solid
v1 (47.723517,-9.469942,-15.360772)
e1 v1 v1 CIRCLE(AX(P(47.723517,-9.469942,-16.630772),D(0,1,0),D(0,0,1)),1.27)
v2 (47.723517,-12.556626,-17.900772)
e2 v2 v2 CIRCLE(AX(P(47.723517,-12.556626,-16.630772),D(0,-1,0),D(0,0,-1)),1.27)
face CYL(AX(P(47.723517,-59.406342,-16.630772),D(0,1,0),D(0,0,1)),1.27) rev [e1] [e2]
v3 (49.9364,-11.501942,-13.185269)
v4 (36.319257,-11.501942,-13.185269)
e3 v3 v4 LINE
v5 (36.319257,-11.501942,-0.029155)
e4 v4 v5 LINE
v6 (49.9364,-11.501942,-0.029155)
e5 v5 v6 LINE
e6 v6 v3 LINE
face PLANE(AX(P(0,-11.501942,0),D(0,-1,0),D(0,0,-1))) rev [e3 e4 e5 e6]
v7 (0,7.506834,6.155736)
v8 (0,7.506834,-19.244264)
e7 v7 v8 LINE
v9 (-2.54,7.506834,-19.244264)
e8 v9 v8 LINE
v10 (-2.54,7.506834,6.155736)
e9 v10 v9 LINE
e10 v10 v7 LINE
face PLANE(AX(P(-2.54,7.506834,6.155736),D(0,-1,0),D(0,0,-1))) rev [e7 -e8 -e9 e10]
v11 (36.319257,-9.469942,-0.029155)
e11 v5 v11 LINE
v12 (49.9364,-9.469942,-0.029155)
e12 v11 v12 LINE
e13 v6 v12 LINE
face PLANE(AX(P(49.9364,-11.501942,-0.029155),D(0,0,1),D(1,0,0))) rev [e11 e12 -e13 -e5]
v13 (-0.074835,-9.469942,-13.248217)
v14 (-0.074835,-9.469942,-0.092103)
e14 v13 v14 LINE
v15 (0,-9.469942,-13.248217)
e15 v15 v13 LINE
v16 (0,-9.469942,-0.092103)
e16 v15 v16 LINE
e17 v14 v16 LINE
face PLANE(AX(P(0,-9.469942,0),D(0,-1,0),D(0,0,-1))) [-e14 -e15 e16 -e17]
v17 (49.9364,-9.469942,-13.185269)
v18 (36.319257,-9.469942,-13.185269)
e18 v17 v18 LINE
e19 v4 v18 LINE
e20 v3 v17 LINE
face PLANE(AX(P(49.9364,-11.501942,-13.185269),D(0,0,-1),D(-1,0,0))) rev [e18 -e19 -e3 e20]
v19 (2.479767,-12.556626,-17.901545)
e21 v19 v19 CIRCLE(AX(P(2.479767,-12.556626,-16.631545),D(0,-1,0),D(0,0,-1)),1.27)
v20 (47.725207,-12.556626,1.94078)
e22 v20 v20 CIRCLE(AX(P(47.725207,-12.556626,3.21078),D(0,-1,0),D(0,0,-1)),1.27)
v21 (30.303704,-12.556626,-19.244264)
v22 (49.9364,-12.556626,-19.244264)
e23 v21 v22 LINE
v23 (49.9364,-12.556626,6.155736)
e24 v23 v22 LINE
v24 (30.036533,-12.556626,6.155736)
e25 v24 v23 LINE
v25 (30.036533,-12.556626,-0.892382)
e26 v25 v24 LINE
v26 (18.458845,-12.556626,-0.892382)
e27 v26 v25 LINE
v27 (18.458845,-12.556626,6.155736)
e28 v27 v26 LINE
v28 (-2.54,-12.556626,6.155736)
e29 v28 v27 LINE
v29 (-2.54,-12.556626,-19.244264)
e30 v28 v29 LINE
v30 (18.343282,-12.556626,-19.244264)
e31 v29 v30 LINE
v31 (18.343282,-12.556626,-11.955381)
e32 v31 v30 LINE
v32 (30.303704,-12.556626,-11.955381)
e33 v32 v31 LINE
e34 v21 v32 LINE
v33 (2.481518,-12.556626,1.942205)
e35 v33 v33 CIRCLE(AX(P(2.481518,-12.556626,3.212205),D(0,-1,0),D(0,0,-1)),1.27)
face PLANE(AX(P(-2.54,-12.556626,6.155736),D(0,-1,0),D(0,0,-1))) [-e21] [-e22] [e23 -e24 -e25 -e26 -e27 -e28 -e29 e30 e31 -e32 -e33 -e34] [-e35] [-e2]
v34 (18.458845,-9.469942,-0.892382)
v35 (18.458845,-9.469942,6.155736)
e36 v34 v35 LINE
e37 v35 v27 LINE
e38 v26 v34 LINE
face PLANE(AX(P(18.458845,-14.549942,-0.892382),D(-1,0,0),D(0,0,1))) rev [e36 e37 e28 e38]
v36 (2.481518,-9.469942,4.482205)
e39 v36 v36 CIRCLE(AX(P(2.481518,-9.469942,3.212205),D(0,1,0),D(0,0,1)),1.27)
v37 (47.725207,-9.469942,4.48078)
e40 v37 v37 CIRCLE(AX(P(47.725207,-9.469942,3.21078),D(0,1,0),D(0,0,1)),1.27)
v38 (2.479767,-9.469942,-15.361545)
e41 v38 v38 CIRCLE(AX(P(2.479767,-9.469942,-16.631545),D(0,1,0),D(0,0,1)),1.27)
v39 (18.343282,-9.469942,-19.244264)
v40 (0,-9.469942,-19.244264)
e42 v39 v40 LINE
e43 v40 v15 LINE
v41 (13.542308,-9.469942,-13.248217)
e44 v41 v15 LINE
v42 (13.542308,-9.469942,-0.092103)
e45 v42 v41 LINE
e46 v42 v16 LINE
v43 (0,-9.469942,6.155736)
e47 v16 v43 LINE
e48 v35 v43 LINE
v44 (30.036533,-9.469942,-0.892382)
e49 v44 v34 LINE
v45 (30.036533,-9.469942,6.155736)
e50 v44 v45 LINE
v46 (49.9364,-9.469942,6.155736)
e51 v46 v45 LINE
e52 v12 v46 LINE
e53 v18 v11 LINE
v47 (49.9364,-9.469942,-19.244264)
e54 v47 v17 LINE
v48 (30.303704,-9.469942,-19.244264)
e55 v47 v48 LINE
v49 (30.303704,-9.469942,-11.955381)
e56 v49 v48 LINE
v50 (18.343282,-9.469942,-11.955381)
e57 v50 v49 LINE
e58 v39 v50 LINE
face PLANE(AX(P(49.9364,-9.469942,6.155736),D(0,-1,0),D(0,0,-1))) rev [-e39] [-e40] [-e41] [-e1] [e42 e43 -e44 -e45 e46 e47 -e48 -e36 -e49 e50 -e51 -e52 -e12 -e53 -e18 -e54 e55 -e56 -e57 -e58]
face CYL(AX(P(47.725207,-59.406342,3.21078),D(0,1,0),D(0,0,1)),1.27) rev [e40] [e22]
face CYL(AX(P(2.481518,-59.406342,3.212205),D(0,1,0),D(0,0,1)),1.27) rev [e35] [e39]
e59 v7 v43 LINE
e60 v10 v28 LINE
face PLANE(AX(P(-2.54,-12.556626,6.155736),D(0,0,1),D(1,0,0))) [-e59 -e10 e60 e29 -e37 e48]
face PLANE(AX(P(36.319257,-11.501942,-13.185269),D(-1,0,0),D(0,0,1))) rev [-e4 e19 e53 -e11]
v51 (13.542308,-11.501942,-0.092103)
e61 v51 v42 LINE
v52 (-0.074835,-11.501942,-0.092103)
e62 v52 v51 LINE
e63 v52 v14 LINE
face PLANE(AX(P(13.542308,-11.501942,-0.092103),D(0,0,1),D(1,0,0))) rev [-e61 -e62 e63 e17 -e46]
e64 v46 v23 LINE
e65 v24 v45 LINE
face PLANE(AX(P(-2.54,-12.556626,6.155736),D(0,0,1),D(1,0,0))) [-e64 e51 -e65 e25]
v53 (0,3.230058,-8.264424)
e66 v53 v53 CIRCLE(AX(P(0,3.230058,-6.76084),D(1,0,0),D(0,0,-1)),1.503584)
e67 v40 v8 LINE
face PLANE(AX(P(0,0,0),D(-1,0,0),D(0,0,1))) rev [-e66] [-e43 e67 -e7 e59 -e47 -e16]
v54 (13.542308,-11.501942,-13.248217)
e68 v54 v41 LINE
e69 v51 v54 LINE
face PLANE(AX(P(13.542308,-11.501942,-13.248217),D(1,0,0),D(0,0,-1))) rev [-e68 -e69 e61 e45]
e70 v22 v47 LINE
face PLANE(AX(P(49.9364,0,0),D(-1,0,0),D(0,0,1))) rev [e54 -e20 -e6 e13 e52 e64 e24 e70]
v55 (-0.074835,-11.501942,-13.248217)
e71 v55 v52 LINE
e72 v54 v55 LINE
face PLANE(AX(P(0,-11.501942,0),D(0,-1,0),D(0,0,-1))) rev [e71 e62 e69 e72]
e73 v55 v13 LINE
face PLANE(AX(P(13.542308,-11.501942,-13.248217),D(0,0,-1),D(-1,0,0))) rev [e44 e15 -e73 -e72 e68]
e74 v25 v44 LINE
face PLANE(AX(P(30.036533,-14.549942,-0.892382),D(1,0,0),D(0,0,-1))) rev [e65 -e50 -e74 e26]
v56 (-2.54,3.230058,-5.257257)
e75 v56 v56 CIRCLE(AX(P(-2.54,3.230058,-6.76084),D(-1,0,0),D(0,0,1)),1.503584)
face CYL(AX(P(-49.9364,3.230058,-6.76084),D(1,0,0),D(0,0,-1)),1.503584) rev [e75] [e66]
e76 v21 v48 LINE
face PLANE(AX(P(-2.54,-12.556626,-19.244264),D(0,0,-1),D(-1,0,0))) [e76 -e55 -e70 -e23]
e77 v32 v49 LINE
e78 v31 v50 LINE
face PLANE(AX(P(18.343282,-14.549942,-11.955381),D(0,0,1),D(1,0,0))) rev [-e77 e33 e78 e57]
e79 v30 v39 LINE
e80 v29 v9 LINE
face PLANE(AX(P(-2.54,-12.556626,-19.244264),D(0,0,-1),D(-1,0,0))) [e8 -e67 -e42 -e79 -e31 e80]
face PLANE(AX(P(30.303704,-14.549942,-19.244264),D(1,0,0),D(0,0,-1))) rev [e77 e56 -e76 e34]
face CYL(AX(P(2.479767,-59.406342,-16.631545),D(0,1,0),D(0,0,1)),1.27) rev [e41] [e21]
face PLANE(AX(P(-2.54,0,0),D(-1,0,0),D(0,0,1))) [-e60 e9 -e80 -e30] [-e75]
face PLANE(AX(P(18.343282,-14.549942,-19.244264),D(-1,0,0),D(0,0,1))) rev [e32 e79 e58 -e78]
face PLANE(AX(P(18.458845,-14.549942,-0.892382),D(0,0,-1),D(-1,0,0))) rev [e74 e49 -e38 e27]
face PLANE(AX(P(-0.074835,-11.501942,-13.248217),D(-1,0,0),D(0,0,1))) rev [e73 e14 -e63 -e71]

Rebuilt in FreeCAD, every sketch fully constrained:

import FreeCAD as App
import Part
import Sketcher
Q = App.Units.Quantity

doc = App.newDocument("Part")
body = doc.addObject("PartDesign::Body", "Body")

# Sketch on YZ plane
sketch1 = doc.addObject("Sketcher::SketchObject", "Sketch")
body.addObject(sketch1)
sketch1.AttachmentSupport = (doc.YZ_Plane, [""])
sketch1.MapMode = "FlatFace"
sketch1.addGeometry(Part.LineSegment(App.Vector(12.843374, 6.155736, 0), App.Vector(-12.556626, 6.155736, 0)), False)
sketch1.addGeometry(Part.LineSegment(App.Vector(-12.556626, 6.155736, 0), App.Vector(-12.556626, -19.244264, 0)), False)
sketch1.addGeometry(Part.LineSegment(App.Vector(-12.556626, -19.244264, 0), App.Vector(12.843374, -19.244264, 0)), False)
sketch1.addGeometry(Part.LineSegment(App.Vector(12.843374, -19.244264, 0), App.Vector(12.843374, 6.155736, 0)), False)
sketch1.addConstraint(Sketcher.Constraint("Coincident", 0, 2, 1, 1))
sketch1.addConstraint(Sketcher.Constraint("Coincident", 1, 2, 2, 1))
sketch1.addConstraint(Sketcher.Constraint("Coincident", 2, 2, 3, 1))
sketch1.addConstraint(Sketcher.Constraint("Coincident", 3, 2, 0, 1))
sketch1.addConstraint(Sketcher.Constraint("Horizontal", 0))
sketch1.addConstraint(Sketcher.Constraint("Vertical", 1))
sketch1.addConstraint(Sketcher.Constraint("Horizontal", 2))
sketch1.addConstraint(Sketcher.Constraint("Vertical", 3))
sketch1.addConstraint(Sketcher.Constraint("Equal", 2, 1))
sketch1.addConstraint(Sketcher.Constraint("DistanceX", 0, 2, 0, 1, Q("1 in")))
sketch1.addConstraint(Sketcher.Constraint("DistanceX", 0, 2, -1, 1, 12.556626))
sketch1.addConstraint(Sketcher.Constraint("DistanceY", -1, 1, 0, 2, 6.155736))
pad1 = doc.addObject("PartDesign::Pad", "Pad")
body.addObject(pad1)
pad1.Profile = sketch1
pad1.Length = Q("0.1 in")
pad1.Reversed = True

# Sketch on YZ plane
sketch2 = doc.addObject("Sketcher::SketchObject", "Sketch001")
body.addObject(sketch2)
sketch2.AttachmentSupport = (doc.YZ_Plane, [""])
sketch2.MapMode = "FlatFace"
sketch2.addGeometry(Part.LineSegment(App.Vector(-9.469942, 6.155736, 0), App.Vector(-12.556626, 6.155736, 0)), False)
sketch2.addGeometry(Part.LineSegment(App.Vector(-12.556626, 6.155736, 0), App.Vector(-12.556626, -19.244264, 0)), False)
sketch2.addGeometry(Part.LineSegment(App.Vector(-12.556626, -19.244264, 0), App.Vector(-9.469942, -19.244264, 0)), False)
sketch2.addGeometry(Part.LineSegment(App.Vector(-9.469942, -19.244264, 0), App.Vector(-9.469942, 6.155736, 0)), False)
sketch2.addConstraint(Sketcher.Constraint("Coincident", 0, 2, 1, 1))
sketch2.addConstraint(Sketcher.Constraint("Coincident", 1, 2, 2, 1))
sketch2.addConstraint(Sketcher.Constraint("Coincident", 2, 2, 3, 1))
sketch2.addConstraint(Sketcher.Constraint("Coincident", 3, 2, 0, 1))
sketch2.addConstraint(Sketcher.Constraint("Horizontal", 0))
sketch2.addConstraint(Sketcher.Constraint("Vertical", 1))
sketch2.addConstraint(Sketcher.Constraint("Horizontal", 2))
sketch2.addConstraint(Sketcher.Constraint("Vertical", 3))
sketch2.addConstraint(Sketcher.Constraint("DistanceY", 1, 2, 1, 1, Q("1 in")))
sketch2.addConstraint(Sketcher.Constraint("DistanceX", 0, 2, 0, 1, 3.086684))
sketch2.addConstraint(Sketcher.Constraint("DistanceX", 2, 2, -1, 1, 9.469942))
sketch2.addConstraint(Sketcher.Constraint("DistanceY", -1, 1, 0, 2, 6.155736))
pad2 = doc.addObject("PartDesign::Pad", "Pad001")
body.addObject(pad2)
pad2.Profile = sketch2
pad2.Length = Q("1.966 in")

# Sketch on XZ plane
sketch3 = doc.addObject("Sketcher::SketchObject", "Sketch002")
body.addObject(sketch3)
sketch3.AttachmentSupport = (doc.XZ_Plane, [""])
sketch3.MapMode = "FlatFace"
sketch3.AttachmentOffset = App.Placement(App.Vector(0, 0, 9.469942), App.Rotation())
sketch3.addGeometry(Part.Circle(App.Vector(2.479767, -16.631545, 0), App.Vector(0, 0, 1), 1.27), False)
sketch3.addGeometry(Part.Circle(App.Vector(47.725207, 3.21078, 0), App.Vector(0, 0, 1), 1.27), False)
sketch3.addGeometry(Part.Circle(App.Vector(47.723517, -16.630772, 0), App.Vector(0, 0, 1), 1.27), False)
sketch3.addGeometry(Part.Circle(App.Vector(2.481518, 3.212205, 0), App.Vector(0, 0, 1), 1.27), False)
sketch3.addConstraint(Sketcher.Constraint("Equal", 0, 1))
sketch3.addConstraint(Sketcher.Constraint("Equal", 1, 2))
sketch3.addConstraint(Sketcher.Constraint("Equal", 2, 3))
sketch3.addConstraint(Sketcher.Constraint("Diameter", 0, Q("0.1 in")))
sketch3.addConstraint(Sketcher.Constraint("DistanceX", 0, 3, 2, 3, Q("1.78125 in")))
sketch3.addConstraint(Sketcher.Constraint("DistanceY", 0, 3, 3, 3, Q("0.78125 in")))
sketch3.addConstraint(Sketcher.Constraint("DistanceX", 3, 3, 2, 3, 45.241999))
sketch3.addConstraint(Sketcher.Constraint("DistanceY", -1, 1, 1, 3, 3.21078))
sketch3.addConstraint(Sketcher.Constraint("DistanceY", 2, 3, -1, 1, 16.630772))
sketch3.addConstraint(Sketcher.Constraint("DistanceX", 0, 3, 1, 3, 45.24544))
sketch3.addConstraint(Sketcher.Constraint("DistanceX", -1, 1, 0, 3, 2.479767))
sketch3.addConstraint(Sketcher.Constraint("DistanceY", 0, 3, -1, 1, 16.631545))
pocket1 = doc.addObject("PartDesign::Pocket", "Pocket")
body.addObject(pocket1)
pocket1.Profile = sketch3
pocket1.Length = Q("1.966 in")
pocket1.Reversed = True

# Sketch on YZ plane
sketch4 = doc.addObject("Sketcher::SketchObject", "Sketch003")
body.addObject(sketch4)
sketch4.AttachmentSupport = (doc.YZ_Plane, [""])
sketch4.MapMode = "FlatFace"
sketch4.addGeometry(Part.Circle(App.Vector(3.230058, -6.76084, 0), App.Vector(0, 0, 1), 1.503584), False)
sketch4.addConstraint(Sketcher.Constraint("Diameter", 0, 3.007167))
sketch4.addConstraint(Sketcher.Constraint("DistanceX", -1, 1, 0, 3, 3.230058))
sketch4.addConstraint(Sketcher.Constraint("DistanceY", 0, 3, -1, 1, 6.76084))
pocket2 = doc.addObject("PartDesign::Pocket", "Pocket001")
body.addObject(pocket2)
pocket2.Profile = sketch4
pocket2.Length = Q("1.966 in")

# Sketch on XZ plane
sketch5 = doc.addObject("Sketcher::SketchObject", "Sketch004")
body.addObject(sketch5)
sketch5.AttachmentSupport = (doc.XZ_Plane, [""])
sketch5.MapMode = "FlatFace"
sketch5.AttachmentOffset = App.Placement(App.Vector(0, 0, 9.469942), App.Rotation())
sketch5.addGeometry(Part.LineSegment(App.Vector(18.343282, -19.244264, 0), App.Vector(18.343282, -11.955381, 0)), False)
sketch5.addGeometry(Part.LineSegment(App.Vector(18.343282, -11.955381, 0), App.Vector(30.303704, -11.955381, 0)), False)
sketch5.addGeometry(Part.LineSegment(App.Vector(30.303704, -11.955381, 0), App.Vector(30.303704, -19.244264, 0)), False)
sketch5.addGeometry(Part.LineSegment(App.Vector(30.303704, -19.244264, 0), App.Vector(18.343282, -19.244264, 0)), False)
sketch5.addGeometry(Part.LineSegment(App.Vector(18.458845, -0.892382, 0), App.Vector(18.458845, 6.223219, 0)), False)
sketch5.addGeometry(Part.LineSegment(App.Vector(18.458845, 6.223219, 0), App.Vector(30.036533, 6.223219, 0)), False)
sketch5.addGeometry(Part.LineSegment(App.Vector(30.036533, 6.223219, 0), App.Vector(30.036533, -0.892382, 0)), False)
sketch5.addGeometry(Part.LineSegment(App.Vector(30.036533, -0.892382, 0), App.Vector(18.458845, -0.892382, 0)), False)
sketch5.addConstraint(Sketcher.Constraint("Coincident", 0, 2, 1, 1))
sketch5.addConstraint(Sketcher.Constraint("Coincident", 1, 2, 2, 1))
sketch5.addConstraint(Sketcher.Constraint("Coincident", 2, 2, 3, 1))
sketch5.addConstraint(Sketcher.Constraint("Coincident", 3, 2, 0, 1))
sketch5.addConstraint(Sketcher.Constraint("Coincident", 4, 2, 5, 1))
sketch5.addConstraint(Sketcher.Constraint("Coincident", 5, 2, 6, 1))
sketch5.addConstraint(Sketcher.Constraint("Coincident", 6, 2, 7, 1))
sketch5.addConstraint(Sketcher.Constraint("Coincident", 7, 2, 4, 1))
sketch5.addConstraint(Sketcher.Constraint("Vertical", 0))
sketch5.addConstraint(Sketcher.Constraint("Horizontal", 1))
sketch5.addConstraint(Sketcher.Constraint("Vertical", 2))
sketch5.addConstraint(Sketcher.Constraint("Horizontal", 3))
sketch5.addConstraint(Sketcher.Constraint("Vertical", 4))
sketch5.addConstraint(Sketcher.Constraint("Horizontal", 5))
sketch5.addConstraint(Sketcher.Constraint("Vertical", 6))
sketch5.addConstraint(Sketcher.Constraint("Horizontal", 7))
sketch5.addConstraint(Sketcher.Constraint("DistanceY", 4, 1, 4, 2, 7.115601))
sketch5.addConstraint(Sketcher.Constraint("DistanceX", 5, 1, 5, 2, 11.577688))
sketch5.addConstraint(Sketcher.Constraint("DistanceY", 0, 2, 4, 2, 18.1786))
sketch5.addConstraint(Sketcher.Constraint("DistanceX", 1, 1, 1, 2, 11.960422))
sketch5.addConstraint(Sketcher.Constraint("DistanceY", 0, 1, 0, 2, 7.288883))
sketch5.addConstraint(Sketcher.Constraint("DistanceX", -1, 1, 0, 2, 18.343282))
sketch5.addConstraint(Sketcher.Constraint("DistanceY", 0, 2, -1, 1, 11.955381))
sketch5.addConstraint(Sketcher.Constraint("DistanceX", 4, 2, 1, 2, 11.844859))
pocket3 = doc.addObject("PartDesign::Pocket", "Pocket002")
body.addObject(pocket3)
pocket3.Profile = sketch5
pocket3.Length = Q("0.2 in")
pocket3.Reversed = True

# Sketch on XZ plane
sketch6 = doc.addObject("Sketcher::SketchObject", "Sketch005")
body.addObject(sketch6)
sketch6.AttachmentSupport = (doc.XZ_Plane, [""])
sketch6.MapMode = "FlatFace"
sketch6.AttachmentOffset = App.Placement(App.Vector(0, 0, 9.469942), App.Rotation())
sketch6.addGeometry(Part.LineSegment(App.Vector(-0.074835, -13.248217, 0), App.Vector(-0.074835, -0.092103, 0)), False)
sketch6.addGeometry(Part.LineSegment(App.Vector(-0.074835, -0.092103, 0), App.Vector(13.542308, -0.092103, 0)), False)
sketch6.addGeometry(Part.LineSegment(App.Vector(13.542308, -0.092103, 0), App.Vector(13.542308, -13.248217, 0)), False)
sketch6.addGeometry(Part.LineSegment(App.Vector(13.542308, -13.248217, 0), App.Vector(-0.074835, -13.248217, 0)), False)
sketch6.addGeometry(Part.LineSegment(App.Vector(36.319257, -13.185269, 0), App.Vector(36.319257, -0.029155, 0)), False)
sketch6.addGeometry(Part.LineSegment(App.Vector(36.319257, -0.029155, 0), App.Vector(49.9364, -0.029155, 0)), False)
sketch6.addGeometry(Part.LineSegment(App.Vector(49.9364, -0.029155, 0), App.Vector(49.9364, -13.185269, 0)), False)
sketch6.addGeometry(Part.LineSegment(App.Vector(49.9364, -13.185269, 0), App.Vector(36.319257, -13.185269, 0)), False)
sketch6.addConstraint(Sketcher.Constraint("Coincident", 0, 2, 1, 1))
sketch6.addConstraint(Sketcher.Constraint("Coincident", 1, 2, 2, 1))
sketch6.addConstraint(Sketcher.Constraint("Coincident", 2, 2, 3, 1))
sketch6.addConstraint(Sketcher.Constraint("Coincident", 3, 2, 0, 1))
sketch6.addConstraint(Sketcher.Constraint("Coincident", 4, 2, 5, 1))
sketch6.addConstraint(Sketcher.Constraint("Coincident", 5, 2, 6, 1))
sketch6.addConstraint(Sketcher.Constraint("Coincident", 6, 2, 7, 1))
sketch6.addConstraint(Sketcher.Constraint("Coincident", 7, 2, 4, 1))
sketch6.addConstraint(Sketcher.Constraint("Vertical", 0))
sketch6.addConstraint(Sketcher.Constraint("Horizontal", 1))
sketch6.addConstraint(Sketcher.Constraint("Vertical", 2))
sketch6.addConstraint(Sketcher.Constraint("Horizontal", 3))
sketch6.addConstraint(Sketcher.Constraint("Vertical", 4))
sketch6.addConstraint(Sketcher.Constraint("Horizontal", 5))
sketch6.addConstraint(Sketcher.Constraint("Vertical", 6))
sketch6.addConstraint(Sketcher.Constraint("Horizontal", 7))
sketch6.addConstraint(Sketcher.Constraint("Equal", 3, 5))
sketch6.addConstraint(Sketcher.Constraint("Equal", 2, 4))
sketch6.addConstraint(Sketcher.Constraint("DistanceX", -1, 1, 5, 2, Q("1.966 in")))
sketch6.addConstraint(Sketcher.Constraint("DistanceX", 1, 1, 1, 2, 13.617143))
sketch6.addConstraint(Sketcher.Constraint("DistanceY", 0, 1, 0, 2, 13.156114))
sketch6.addConstraint(Sketcher.Constraint("DistanceX", -1, 1, 1, 2, 13.542308))
sketch6.addConstraint(Sketcher.Constraint("DistanceY", 6, 2, -1, 1, 13.185269))
sketch6.addConstraint(Sketcher.Constraint("DistanceY", 0, 2, -1, 1, 0.092103))
pocket4 = doc.addObject("PartDesign::Pocket", "Pocket003")
body.addObject(pocket4)
pocket4.Profile = sketch6
pocket4.Length = Q("0.08 in")
pocket4.Reversed = True

# Sketch on YZ plane
sketch7 = doc.addObject("Sketcher::SketchObject", "Sketch006")
body.addObject(sketch7)
sketch7.AttachmentSupport = (doc.YZ_Plane, [""])
sketch7.MapMode = "FlatFace"
sketch7.addGeometry(Part.LineSegment(App.Vector(12.843374, 6.155736, 0), App.Vector(7.506834, 6.155736, 0)), False)
sketch7.addGeometry(Part.LineSegment(App.Vector(7.506834, 6.155736, 0), App.Vector(7.506834, -19.244264, 0)), False)
sketch7.addGeometry(Part.LineSegment(App.Vector(7.506834, -19.244264, 0), App.Vector(12.843374, -19.244264, 0)), False)
sketch7.addGeometry(Part.LineSegment(App.Vector(12.843374, -19.244264, 0), App.Vector(12.843374, 6.155736, 0)), False)
sketch7.addConstraint(Sketcher.Constraint("Coincident", 0, 2, 1, 1))
sketch7.addConstraint(Sketcher.Constraint("Coincident", 1, 2, 2, 1))
sketch7.addConstraint(Sketcher.Constraint("Coincident", 2, 2, 3, 1))
sketch7.addConstraint(Sketcher.Constraint("Coincident", 3, 2, 0, 1))
sketch7.addConstraint(Sketcher.Constraint("Horizontal", 0))
sketch7.addConstraint(Sketcher.Constraint("Vertical", 1))
sketch7.addConstraint(Sketcher.Constraint("Horizontal", 2))
sketch7.addConstraint(Sketcher.Constraint("Vertical", 3))
sketch7.addConstraint(Sketcher.Constraint("DistanceY", 1, 2, 1, 1, Q("1 in")))
sketch7.addConstraint(Sketcher.Constraint("DistanceX", 0, 2, 0, 1, Q("0.2101 in")))
sketch7.addConstraint(Sketcher.Constraint("DistanceX", -1, 1, 0, 2, 7.506834))
sketch7.addConstraint(Sketcher.Constraint("DistanceY", -1, 1, 0, 2, 6.155736))
pocket5 = doc.addObject("PartDesign::Pocket", "Pocket004")
body.addObject(pocket5)
pocket5.Profile = sketch7
pocket5.Length = Q("0.1 in")

doc.recompute()
